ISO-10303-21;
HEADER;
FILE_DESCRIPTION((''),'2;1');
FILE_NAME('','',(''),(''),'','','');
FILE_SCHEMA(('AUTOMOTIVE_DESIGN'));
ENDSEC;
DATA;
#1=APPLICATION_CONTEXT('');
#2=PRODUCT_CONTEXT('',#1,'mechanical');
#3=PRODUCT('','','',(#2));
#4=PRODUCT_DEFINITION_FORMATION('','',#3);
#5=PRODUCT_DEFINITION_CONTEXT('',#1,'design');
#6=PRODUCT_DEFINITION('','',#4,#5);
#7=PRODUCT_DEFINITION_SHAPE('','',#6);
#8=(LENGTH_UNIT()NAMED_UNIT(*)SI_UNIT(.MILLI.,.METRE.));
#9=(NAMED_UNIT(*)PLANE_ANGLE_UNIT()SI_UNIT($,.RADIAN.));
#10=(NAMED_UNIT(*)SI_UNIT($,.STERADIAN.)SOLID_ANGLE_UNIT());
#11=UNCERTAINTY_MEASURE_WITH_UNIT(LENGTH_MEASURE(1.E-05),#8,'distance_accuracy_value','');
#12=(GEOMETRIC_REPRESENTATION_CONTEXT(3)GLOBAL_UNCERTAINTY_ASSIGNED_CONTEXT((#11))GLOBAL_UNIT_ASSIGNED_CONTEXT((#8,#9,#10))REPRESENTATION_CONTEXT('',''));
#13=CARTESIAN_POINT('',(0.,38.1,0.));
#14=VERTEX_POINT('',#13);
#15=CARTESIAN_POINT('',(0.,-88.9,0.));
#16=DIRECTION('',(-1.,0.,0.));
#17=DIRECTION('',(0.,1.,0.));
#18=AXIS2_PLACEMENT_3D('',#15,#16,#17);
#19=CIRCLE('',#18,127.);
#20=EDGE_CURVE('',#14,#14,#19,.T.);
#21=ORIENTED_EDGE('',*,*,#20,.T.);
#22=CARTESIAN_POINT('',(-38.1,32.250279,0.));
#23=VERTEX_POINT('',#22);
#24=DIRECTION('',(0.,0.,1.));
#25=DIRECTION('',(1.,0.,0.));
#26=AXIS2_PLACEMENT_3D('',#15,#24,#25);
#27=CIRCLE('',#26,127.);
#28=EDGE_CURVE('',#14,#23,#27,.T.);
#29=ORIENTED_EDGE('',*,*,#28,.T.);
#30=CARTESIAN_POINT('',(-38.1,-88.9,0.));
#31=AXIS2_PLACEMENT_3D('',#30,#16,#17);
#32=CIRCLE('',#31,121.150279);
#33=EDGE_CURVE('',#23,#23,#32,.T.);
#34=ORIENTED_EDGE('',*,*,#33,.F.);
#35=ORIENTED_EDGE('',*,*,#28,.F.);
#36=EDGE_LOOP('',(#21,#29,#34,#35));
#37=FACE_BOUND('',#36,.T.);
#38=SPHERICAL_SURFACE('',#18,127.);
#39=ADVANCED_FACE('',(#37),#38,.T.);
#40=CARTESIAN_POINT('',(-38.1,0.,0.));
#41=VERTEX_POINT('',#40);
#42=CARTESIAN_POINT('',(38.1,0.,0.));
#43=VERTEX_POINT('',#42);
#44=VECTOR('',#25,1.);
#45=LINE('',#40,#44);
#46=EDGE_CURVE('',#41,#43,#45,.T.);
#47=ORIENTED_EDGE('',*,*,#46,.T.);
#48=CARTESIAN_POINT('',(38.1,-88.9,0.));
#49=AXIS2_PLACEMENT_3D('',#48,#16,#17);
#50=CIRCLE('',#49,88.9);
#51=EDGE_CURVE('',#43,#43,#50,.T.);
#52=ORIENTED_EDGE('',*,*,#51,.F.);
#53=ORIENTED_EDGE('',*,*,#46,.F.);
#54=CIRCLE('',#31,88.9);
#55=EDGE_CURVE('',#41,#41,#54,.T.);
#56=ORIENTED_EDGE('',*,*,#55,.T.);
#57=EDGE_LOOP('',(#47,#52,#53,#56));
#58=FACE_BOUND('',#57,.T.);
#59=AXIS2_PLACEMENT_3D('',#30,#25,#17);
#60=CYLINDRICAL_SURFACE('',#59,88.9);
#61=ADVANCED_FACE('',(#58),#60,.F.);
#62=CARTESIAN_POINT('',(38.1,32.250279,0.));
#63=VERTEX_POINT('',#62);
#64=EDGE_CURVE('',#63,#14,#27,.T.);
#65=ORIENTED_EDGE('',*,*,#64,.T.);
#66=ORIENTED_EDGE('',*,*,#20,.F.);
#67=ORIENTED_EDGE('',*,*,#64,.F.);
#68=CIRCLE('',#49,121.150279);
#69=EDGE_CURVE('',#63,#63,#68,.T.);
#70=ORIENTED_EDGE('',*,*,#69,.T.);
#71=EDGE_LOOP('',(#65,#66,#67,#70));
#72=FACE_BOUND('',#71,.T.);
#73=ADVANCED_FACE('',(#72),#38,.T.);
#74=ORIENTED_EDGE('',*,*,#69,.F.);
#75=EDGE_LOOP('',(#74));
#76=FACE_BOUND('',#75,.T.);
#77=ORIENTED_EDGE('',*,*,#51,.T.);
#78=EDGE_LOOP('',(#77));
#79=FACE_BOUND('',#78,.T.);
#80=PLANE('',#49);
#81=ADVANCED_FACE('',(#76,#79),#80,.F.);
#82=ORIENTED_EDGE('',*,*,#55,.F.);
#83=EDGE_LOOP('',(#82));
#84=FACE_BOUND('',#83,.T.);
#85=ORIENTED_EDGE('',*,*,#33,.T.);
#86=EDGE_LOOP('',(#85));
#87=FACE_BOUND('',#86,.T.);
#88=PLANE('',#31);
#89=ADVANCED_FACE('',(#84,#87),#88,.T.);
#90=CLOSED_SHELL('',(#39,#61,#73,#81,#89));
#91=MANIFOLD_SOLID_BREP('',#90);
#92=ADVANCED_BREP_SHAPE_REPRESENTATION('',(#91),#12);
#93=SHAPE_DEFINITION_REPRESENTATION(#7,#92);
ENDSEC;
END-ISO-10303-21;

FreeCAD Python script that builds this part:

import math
import FreeCAD as App
import Part
import Sketcher
from FreeCAD import Vector
Q = App.Units.Quantity

doc = App.newDocument("Part")
body = doc.addObject("PartDesign::Body", "Body")

# Sketch on XY plane
sketch1 = doc.addObject("Sketcher::SketchObject", "Sketch")
body.addObject(sketch1)
sketch1.AttachmentSupport = (doc.XY_Plane, [""])
sketch1.MapMode = "FlatFace"
sketch1.addGeometry([
    Part.LineSegment(Vector(-38, 32, 0), Vector(-38, 0, 0)),
    Part.LineSegment(Vector(-38, 0, 0), Vector(38, 0, 0)),
    Part.LineSegment(Vector(38, 0, 0), Vector(38, 32, 0)),
    Part.ArcOfCircle(Part.Circle(Vector(0, -89, 0), Vector(0, 0, 1), 127), math.radians(73), math.radians(107)),
], False)
sketch1.addGeometry(Part.LineSegment(Vector(38, -89, 0), Vector(-38, -89, 0)), True)  # axis
sketch1.addConstraint([
    Sketcher.Constraint("Coincident", 0, 2, 1, 1),
    Sketcher.Constraint("Coincident", 1, 2, 2, 1),
    Sketcher.Constraint("Coincident", 2, 2, 3, 1),
    Sketcher.Constraint("Coincident", 3, 2, 0, 1),
    Sketcher.Constraint("Vertical", 0),
    Sketcher.Constraint("Horizontal", 1),
    Sketcher.Constraint("Vertical", 2),
    Sketcher.Constraint("Horizontal", 4),
    Sketcher.Constraint("Symmetric", 0, 2, 1, 2, -1, 1),
    Sketcher.Constraint("PointOnObject", 3, 3, -2),
    Sketcher.Constraint("Horizontal", 3, 3, 4, 1),
    Sketcher.Constraint("Vertical", 2, 2, 4, 1),
    Sketcher.Constraint("Vertical", 3, 2, 4, 2),
    Sketcher.Constraint("Radius", 3, Q("5 in")),
    Sketcher.Constraint("DistanceX", 1, 1, 1, 2, Q("3 in")),
    Sketcher.Constraint("DistanceY", 3, 3, -1, 1, Q("3.5 in")),
])
revolution = doc.addObject("PartDesign::Revolution", "Revolution")
body.addObject(revolution)
revolution.Profile = sketch1
revolution.ReferenceAxis = (sketch1, ["Axis0"])
revolution.Angle = 360

doc.recompute()
